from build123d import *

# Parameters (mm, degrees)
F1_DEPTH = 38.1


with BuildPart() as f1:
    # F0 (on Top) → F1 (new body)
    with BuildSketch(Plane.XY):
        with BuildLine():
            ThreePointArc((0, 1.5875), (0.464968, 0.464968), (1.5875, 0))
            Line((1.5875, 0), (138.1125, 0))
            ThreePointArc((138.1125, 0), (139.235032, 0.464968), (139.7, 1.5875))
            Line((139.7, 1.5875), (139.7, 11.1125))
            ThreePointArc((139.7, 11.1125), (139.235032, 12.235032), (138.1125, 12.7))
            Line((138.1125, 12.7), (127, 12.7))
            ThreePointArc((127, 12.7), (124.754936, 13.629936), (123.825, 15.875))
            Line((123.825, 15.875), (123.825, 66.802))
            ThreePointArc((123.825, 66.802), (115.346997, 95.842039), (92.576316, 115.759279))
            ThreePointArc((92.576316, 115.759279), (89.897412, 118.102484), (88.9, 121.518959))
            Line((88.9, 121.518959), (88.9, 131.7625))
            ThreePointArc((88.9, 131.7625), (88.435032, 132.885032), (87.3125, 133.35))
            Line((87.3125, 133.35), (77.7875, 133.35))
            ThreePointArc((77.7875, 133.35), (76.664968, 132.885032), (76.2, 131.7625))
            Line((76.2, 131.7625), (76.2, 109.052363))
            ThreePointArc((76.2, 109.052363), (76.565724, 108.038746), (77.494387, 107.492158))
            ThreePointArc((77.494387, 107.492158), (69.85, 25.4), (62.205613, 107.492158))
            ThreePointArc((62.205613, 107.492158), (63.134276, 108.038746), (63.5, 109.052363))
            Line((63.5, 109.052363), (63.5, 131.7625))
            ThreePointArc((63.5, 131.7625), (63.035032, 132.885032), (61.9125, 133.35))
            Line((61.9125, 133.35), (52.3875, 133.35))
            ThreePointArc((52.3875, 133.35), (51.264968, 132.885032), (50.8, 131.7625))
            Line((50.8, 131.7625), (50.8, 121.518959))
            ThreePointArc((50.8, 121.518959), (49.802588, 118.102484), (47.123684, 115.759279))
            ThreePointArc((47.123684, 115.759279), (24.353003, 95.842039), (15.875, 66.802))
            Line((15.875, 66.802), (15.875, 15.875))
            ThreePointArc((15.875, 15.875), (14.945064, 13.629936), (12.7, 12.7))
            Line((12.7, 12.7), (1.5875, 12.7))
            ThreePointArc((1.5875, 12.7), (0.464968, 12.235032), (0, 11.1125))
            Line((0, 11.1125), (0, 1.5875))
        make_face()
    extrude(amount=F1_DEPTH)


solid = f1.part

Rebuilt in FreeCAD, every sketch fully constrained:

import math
import FreeCAD as App
import Part
import Sketcher
from FreeCAD import Vector
Q = App.Units.Quantity

doc = App.newDocument("Part")
body = doc.addObject("PartDesign::Body", "Body")

# Sketch on XY plane
sketch1 = doc.addObject("Sketcher::SketchObject", "Sketch")
body.addObject(sketch1)
sketch1.AttachmentSupport = (doc.XY_Plane, [""])
sketch1.MapMode = "FlatFace"
sketch1.addGeometry(Part.ArcOfCircle(Part.Circle(Vector(1.5875, 1.5875, 0), Vector(0, 0, 1), 1.5875), math.radians(-179.999998), math.radians(-90.000002)), False)
sketch1.addGeometry(Part.LineSegment(Vector(1.5875, 0, 0), Vector(138.1125, 0, 0)), False)
sketch1.addGeometry(Part.ArcOfCircle(Part.Circle(Vector(138.1125, 1.5875, 0), Vector(0, 0, 1), 1.5875), math.radians(-89.999998), math.radians(-0.000002)), False)
sketch1.addGeometry(Part.LineSegment(Vector(139.7, 1.5875, 0), Vector(139.7, 11.1125, 0)), False)
sketch1.addGeometry(Part.ArcOfCircle(Part.Circle(Vector(138.1125, 11.1125, 0), Vector(0, 0, 1), 1.5875), math.radians(0.000002), math.radians(89.999998)), False)
sketch1.addGeometry(Part.LineSegment(Vector(138.1125, 12.7, 0), Vector(127, 12.7, 0)), False)
sketch1.addGeometry(Part.ArcOfCircle(Part.Circle(Vector(127, 15.875, 0), Vector(0, 0, 1), 3.175), math.radians(-179.999998), math.radians(-90.000002)), False)
sketch1.addGeometry(Part.LineSegment(Vector(123.825, 15.875, 0), Vector(123.825, 66.802, 0)), False)
sketch1.addGeometry(Part.ArcOfCircle(Part.Circle(Vector(69.849999, 66.801999, 0), Vector(0, 0, 1), 53.975001), math.radians(0.000001), math.radians(65.098937)), False)
sketch1.addGeometry(Part.ArcOfCircle(Part.Circle(Vector(95.25, 121.518959, 0), Vector(0, 0, 1), 6.35), math.radians(-179.999999), math.radians(-114.901061)), False)
sketch1.addGeometry(Part.LineSegment(Vector(88.9, 121.518959, 0), Vector(88.9, 131.7625, 0)), False)
sketch1.addGeometry(Part.ArcOfCircle(Part.Circle(Vector(87.3125, 131.7625, 0), Vector(0, 0, 1), 1.5875), math.radians(0.000002), math.radians(89.999998)), False)
sketch1.addGeometry(Part.LineSegment(Vector(87.3125, 133.35, 0), Vector(77.7875, 133.35, 0)), False)
sketch1.addGeometry(Part.ArcOfCircle(Part.Circle(Vector(77.7875, 131.7625, 0), Vector(0, 0, 1), 1.5875), math.radians(90.000002), math.radians(179.999998)), False)
sketch1.addGeometry(Part.LineSegment(Vector(76.2, 131.7625, 0), Vector(76.2, 109.052363, 0)), False)
sketch1.addGeometry(Part.ArcOfCircle(Part.Circle(Vector(77.787499, 109.052363, 0), Vector(0, 0, 1), 1.587499), math.radians(179.999995), math.radians(259.359987)), False)
sketch1.addGeometry(Part.ArcOfCircle(Part.Circle(Vector(69.85, 66.802, 0), Vector(0, 0, 1), 41.402), math.radians(100.640034), math.radians(439.359966)), False)
sketch1.addGeometry(Part.ArcOfCircle(Part.Circle(Vector(61.912501, 109.052363, 0), Vector(0, 0, 1), 1.587499), math.radians(-79.359987), math.radians(0.000005)), False)
sketch1.addGeometry(Part.LineSegment(Vector(63.5, 109.052363, 0), Vector(63.5, 131.7625, 0)), False)
sketch1.addGeometry(Part.ArcOfCircle(Part.Circle(Vector(61.9125, 131.7625, 0), Vector(0, 0, 1), 1.5875), math.radians(0.000002), math.radians(89.999998)), False)
sketch1.addGeometry(Part.LineSegment(Vector(61.9125, 133.35, 0), Vector(52.3875, 133.35, 0)), False)
sketch1.addGeometry(Part.ArcOfCircle(Part.Circle(Vector(52.3875, 131.7625, 0), Vector(0, 0, 1), 1.5875), math.radians(90.000002), math.radians(179.999998)), False)
sketch1.addGeometry(Part.LineSegment(Vector(50.8, 131.7625, 0), Vector(50.8, 121.518959, 0)), False)
sketch1.addGeometry(Part.ArcOfCircle(Part.Circle(Vector(44.45, 121.518959, 0), Vector(0, 0, 1), 6.35), math.radians(-65.098939), math.radians(-0.000001)), False)
sketch1.addGeometry(Part.ArcOfCircle(Part.Circle(Vector(69.850001, 66.801999, 0), Vector(0, 0, 1), 53.975001), math.radians(114.901063), math.radians(179.999999)), False)
sketch1.addGeometry(Part.LineSegment(Vector(15.875, 66.802, 0), Vector(15.875, 15.875, 0)), False)
sketch1.addGeometry(Part.ArcOfCircle(Part.Circle(Vector(12.7, 15.875, 0), Vector(0, 0, 1), 3.175), math.radians(-89.999998), math.radians(-0.000002)), False)
sketch1.addGeometry(Part.LineSegment(Vector(12.7, 12.7, 0), Vector(1.5875, 12.7, 0)), False)
sketch1.addGeometry(Part.ArcOfCircle(Part.Circle(Vector(1.5875, 11.1125, 0), Vector(0, 0, 1), 1.5875), math.radians(90.000002), math.radians(179.999998)), False)
sketch1.addGeometry(Part.LineSegment(Vector(0, 11.1125, 0), Vector(0, 1.5875, 0)), False)
sketch1.addConstraint(Sketcher.Constraint("Tangent", 0, 2, 1, 1))
sketch1.addConstraint(Sketcher.Constraint("Tangent", 1, 2, 2, 1))
sketch1.addConstraint(Sketcher.Constraint("Tangent", 2, 2, 3, 1))
sketch1.addConstraint(Sketcher.Constraint("Tangent", 3, 2, 4, 1))
sketch1.addConstraint(Sketcher.Constraint("Tangent", 4, 2, 5, 1))
sketch1.addConstraint(Sketcher.Constraint("Tangent", 5, 2, 6, 2))
sketch1.addConstraint(Sketcher.Constraint("Tangent", 6, 1, 7, 1))
sketch1.addConstraint(Sketcher.Constraint("Tangent", 7, 2, 8, 1))
sketch1.addConstraint(Sketcher.Constraint("Tangent", 8, 2, 9, 2))
sketch1.addConstraint(Sketcher.Constraint("Tangent", 9, 1, 10, 1))
sketch1.addConstraint(Sketcher.Constraint("Tangent", 10, 2, 11, 1))
sketch1.addConstraint(Sketcher.Constraint("Tangent", 11, 2, 12, 1))
sketch1.addConstraint(Sketcher.Constraint("Tangent", 12, 2, 13, 1))
sketch1.addConstraint(Sketcher.Constraint("Tangent", 13, 2, 14, 1))
sketch1.addConstraint(Sketcher.Constraint("Tangent", 14, 2, 15, 1))
sketch1.addConstraint(Sketcher.Constraint("Tangent", 15, 2, 16, 2))
sketch1.addConstraint(Sketcher.Constraint("Tangent", 16, 1, 17, 1))
sketch1.addConstraint(Sketcher.Constraint("Tangent", 17, 2, 18, 1))
sketch1.addConstraint(Sketcher.Constraint("Tangent", 18, 2, 19, 1))
sketch1.addConstraint(Sketcher.Constraint("Tangent", 19, 2, 20, 1))
sketch1.addConstraint(Sketcher.Constraint("Tangent", 20, 2, 21, 1))
sketch1.addConstraint(Sketcher.Constraint("Tangent", 21, 2, 22, 1))
sketch1.addConstraint(Sketcher.Constraint("Tangent", 22, 2, 23, 2))
sketch1.addConstraint(Sketcher.Constraint("Tangent", 23, 1, 24, 1))
sketch1.addConstraint(Sketcher.Constraint("Tangent", 24, 2, 25, 1))
sketch1.addConstraint(Sketcher.Constraint("Tangent", 25, 2, 26, 2))
sketch1.addConstraint(Sketcher.Constraint("Tangent", 26, 1, 27, 1))
sketch1.addConstraint(Sketcher.Constraint("Tangent", 27, 2, 28, 1))
sketch1.addConstraint(Sketcher.Constraint("Tangent", 28, 2, 29, 1))
sketch1.addConstraint(Sketcher.Constraint("Tangent", 29, 2, 0, 1))
sketch1.addConstraint(Sketcher.Constraint("Horizontal", 1))
sketch1.addConstraint(Sketcher.Constraint("Vertical", 3))
sketch1.addConstraint(Sketcher.Constraint("Horizontal", 5))
sketch1.addConstraint(Sketcher.Constraint("Vertical", 7))
sketch1.addConstraint(Sketcher.Constraint("Vertical", 10))
sketch1.addConstraint(Sketcher.Constraint("Horizontal", 12))
sketch1.addConstraint(Sketcher.Constraint("Vertical", 14))
sketch1.addConstraint(Sketcher.Constraint("Vertical", 18))
sketch1.addConstraint(Sketcher.Constraint("Horizontal", 20))
sketch1.addConstraint(Sketcher.Constraint("Vertical", 22))
sketch1.addConstraint(Sketcher.Constraint("Vertical", 25))
sketch1.addConstraint(Sketcher.Constraint("Horizontal", 27))
sketch1.addConstraint(Sketcher.Constraint("Vertical", 29))
sketch1.addConstraint(Sketcher.Constraint("Coincident", 16, 3, 8, 3))
sketch1.addConstraint(Sketcher.Constraint("Coincident", 24, 3, 8, 3))
sketch1.addConstraint(Sketcher.Constraint("Equal", 0, 2))
sketch1.addConstraint(Sketcher.Constraint("Equal", 2, 4))
sketch1.addConstraint(Sketcher.Constraint("Equal", 4, 11))
sketch1.addConstraint(Sketcher.Constraint("Equal", 11, 13))
sketch1.addConstraint(Sketcher.Constraint("Equal", 13, 15))
sketch1.addConstraint(Sketcher.Constraint("Equal", 15, 17))
sketch1.addConstraint(Sketcher.Constraint("Equal", 17, 19))
sketch1.addConstraint(Sketcher.Constraint("Equal", 19, 21))
sketch1.addConstraint(Sketcher.Constraint("Equal", 9, 23))
sketch1.addConstraint(Sketcher.Constraint("Equal", 8, 24))
sketch1.addConstraint(Sketcher.Constraint("Equal", 6, 26))
sketch1.addConstraint(Sketcher.Constraint("Equal", 21, 28))
sketch1.addConstraint(Sketcher.Constraint("PointOnObject", 0, 2, -1))
sketch1.addConstraint(Sketcher.Constraint("PointOnObject", 28, 2, -2))
sketch1.addConstraint(Sketcher.Constraint("Horizontal", 15, 3, 17, 3))
sketch1.addConstraint(Sketcher.Constraint("Horizontal", 13, 3, 19, 3))
sketch1.addConstraint(Sketcher.Constraint("Horizontal", 9, 3, 23, 3))
sketch1.addConstraint(Sketcher.Constraint("Horizontal", 6, 3, 26, 3))
sketch1.addConstraint(Sketcher.Constraint("Equal", 5, 27))
sketch1.addConstraint(Sketcher.Constraint("Equal", 20, 3))
sketch1.addConstraint(Sketcher.Constraint("Radius", 9, Q("0.25 in")))
sketch1.addConstraint(Sketcher.Constraint("Radius", 16, Q("1.63 in")))
sketch1.addConstraint(Sketcher.Constraint("DistanceX", -1, 1, 6, 3, Q("5 in")))
sketch1.addConstraint(Sketcher.Constraint("DistanceX", -1, 1, 13, 2, Q("3 in")))
sketch1.addConstraint(Sketcher.Constraint("DistanceX", -1, 1, 21, 2, Q("2 in")))
sketch1.addConstraint(Sketcher.Constraint("Radius", 0, Q("0.0625 in")))
sketch1.addConstraint(Sketcher.Constraint("Radius", 6, Q("0.125 in")))
sketch1.addConstraint(Sketcher.Constraint("Radius", 8, Q("2.125 in")))
sketch1.addConstraint(Sketcher.Constraint("DistanceY", 7, 1, 7, 2, Q("2.005 in")))
sketch1.addConstraint(Sketcher.Constraint("DistanceY", -1, 1, 11, 2, Q("5.25 in")))
pad1 = doc.addObject("PartDesign::Pad", "Pad")
body.addObject(pad1)
pad1.Profile = sketch1
pad1.Length = Q("1.5 in")

doc.recompute()
